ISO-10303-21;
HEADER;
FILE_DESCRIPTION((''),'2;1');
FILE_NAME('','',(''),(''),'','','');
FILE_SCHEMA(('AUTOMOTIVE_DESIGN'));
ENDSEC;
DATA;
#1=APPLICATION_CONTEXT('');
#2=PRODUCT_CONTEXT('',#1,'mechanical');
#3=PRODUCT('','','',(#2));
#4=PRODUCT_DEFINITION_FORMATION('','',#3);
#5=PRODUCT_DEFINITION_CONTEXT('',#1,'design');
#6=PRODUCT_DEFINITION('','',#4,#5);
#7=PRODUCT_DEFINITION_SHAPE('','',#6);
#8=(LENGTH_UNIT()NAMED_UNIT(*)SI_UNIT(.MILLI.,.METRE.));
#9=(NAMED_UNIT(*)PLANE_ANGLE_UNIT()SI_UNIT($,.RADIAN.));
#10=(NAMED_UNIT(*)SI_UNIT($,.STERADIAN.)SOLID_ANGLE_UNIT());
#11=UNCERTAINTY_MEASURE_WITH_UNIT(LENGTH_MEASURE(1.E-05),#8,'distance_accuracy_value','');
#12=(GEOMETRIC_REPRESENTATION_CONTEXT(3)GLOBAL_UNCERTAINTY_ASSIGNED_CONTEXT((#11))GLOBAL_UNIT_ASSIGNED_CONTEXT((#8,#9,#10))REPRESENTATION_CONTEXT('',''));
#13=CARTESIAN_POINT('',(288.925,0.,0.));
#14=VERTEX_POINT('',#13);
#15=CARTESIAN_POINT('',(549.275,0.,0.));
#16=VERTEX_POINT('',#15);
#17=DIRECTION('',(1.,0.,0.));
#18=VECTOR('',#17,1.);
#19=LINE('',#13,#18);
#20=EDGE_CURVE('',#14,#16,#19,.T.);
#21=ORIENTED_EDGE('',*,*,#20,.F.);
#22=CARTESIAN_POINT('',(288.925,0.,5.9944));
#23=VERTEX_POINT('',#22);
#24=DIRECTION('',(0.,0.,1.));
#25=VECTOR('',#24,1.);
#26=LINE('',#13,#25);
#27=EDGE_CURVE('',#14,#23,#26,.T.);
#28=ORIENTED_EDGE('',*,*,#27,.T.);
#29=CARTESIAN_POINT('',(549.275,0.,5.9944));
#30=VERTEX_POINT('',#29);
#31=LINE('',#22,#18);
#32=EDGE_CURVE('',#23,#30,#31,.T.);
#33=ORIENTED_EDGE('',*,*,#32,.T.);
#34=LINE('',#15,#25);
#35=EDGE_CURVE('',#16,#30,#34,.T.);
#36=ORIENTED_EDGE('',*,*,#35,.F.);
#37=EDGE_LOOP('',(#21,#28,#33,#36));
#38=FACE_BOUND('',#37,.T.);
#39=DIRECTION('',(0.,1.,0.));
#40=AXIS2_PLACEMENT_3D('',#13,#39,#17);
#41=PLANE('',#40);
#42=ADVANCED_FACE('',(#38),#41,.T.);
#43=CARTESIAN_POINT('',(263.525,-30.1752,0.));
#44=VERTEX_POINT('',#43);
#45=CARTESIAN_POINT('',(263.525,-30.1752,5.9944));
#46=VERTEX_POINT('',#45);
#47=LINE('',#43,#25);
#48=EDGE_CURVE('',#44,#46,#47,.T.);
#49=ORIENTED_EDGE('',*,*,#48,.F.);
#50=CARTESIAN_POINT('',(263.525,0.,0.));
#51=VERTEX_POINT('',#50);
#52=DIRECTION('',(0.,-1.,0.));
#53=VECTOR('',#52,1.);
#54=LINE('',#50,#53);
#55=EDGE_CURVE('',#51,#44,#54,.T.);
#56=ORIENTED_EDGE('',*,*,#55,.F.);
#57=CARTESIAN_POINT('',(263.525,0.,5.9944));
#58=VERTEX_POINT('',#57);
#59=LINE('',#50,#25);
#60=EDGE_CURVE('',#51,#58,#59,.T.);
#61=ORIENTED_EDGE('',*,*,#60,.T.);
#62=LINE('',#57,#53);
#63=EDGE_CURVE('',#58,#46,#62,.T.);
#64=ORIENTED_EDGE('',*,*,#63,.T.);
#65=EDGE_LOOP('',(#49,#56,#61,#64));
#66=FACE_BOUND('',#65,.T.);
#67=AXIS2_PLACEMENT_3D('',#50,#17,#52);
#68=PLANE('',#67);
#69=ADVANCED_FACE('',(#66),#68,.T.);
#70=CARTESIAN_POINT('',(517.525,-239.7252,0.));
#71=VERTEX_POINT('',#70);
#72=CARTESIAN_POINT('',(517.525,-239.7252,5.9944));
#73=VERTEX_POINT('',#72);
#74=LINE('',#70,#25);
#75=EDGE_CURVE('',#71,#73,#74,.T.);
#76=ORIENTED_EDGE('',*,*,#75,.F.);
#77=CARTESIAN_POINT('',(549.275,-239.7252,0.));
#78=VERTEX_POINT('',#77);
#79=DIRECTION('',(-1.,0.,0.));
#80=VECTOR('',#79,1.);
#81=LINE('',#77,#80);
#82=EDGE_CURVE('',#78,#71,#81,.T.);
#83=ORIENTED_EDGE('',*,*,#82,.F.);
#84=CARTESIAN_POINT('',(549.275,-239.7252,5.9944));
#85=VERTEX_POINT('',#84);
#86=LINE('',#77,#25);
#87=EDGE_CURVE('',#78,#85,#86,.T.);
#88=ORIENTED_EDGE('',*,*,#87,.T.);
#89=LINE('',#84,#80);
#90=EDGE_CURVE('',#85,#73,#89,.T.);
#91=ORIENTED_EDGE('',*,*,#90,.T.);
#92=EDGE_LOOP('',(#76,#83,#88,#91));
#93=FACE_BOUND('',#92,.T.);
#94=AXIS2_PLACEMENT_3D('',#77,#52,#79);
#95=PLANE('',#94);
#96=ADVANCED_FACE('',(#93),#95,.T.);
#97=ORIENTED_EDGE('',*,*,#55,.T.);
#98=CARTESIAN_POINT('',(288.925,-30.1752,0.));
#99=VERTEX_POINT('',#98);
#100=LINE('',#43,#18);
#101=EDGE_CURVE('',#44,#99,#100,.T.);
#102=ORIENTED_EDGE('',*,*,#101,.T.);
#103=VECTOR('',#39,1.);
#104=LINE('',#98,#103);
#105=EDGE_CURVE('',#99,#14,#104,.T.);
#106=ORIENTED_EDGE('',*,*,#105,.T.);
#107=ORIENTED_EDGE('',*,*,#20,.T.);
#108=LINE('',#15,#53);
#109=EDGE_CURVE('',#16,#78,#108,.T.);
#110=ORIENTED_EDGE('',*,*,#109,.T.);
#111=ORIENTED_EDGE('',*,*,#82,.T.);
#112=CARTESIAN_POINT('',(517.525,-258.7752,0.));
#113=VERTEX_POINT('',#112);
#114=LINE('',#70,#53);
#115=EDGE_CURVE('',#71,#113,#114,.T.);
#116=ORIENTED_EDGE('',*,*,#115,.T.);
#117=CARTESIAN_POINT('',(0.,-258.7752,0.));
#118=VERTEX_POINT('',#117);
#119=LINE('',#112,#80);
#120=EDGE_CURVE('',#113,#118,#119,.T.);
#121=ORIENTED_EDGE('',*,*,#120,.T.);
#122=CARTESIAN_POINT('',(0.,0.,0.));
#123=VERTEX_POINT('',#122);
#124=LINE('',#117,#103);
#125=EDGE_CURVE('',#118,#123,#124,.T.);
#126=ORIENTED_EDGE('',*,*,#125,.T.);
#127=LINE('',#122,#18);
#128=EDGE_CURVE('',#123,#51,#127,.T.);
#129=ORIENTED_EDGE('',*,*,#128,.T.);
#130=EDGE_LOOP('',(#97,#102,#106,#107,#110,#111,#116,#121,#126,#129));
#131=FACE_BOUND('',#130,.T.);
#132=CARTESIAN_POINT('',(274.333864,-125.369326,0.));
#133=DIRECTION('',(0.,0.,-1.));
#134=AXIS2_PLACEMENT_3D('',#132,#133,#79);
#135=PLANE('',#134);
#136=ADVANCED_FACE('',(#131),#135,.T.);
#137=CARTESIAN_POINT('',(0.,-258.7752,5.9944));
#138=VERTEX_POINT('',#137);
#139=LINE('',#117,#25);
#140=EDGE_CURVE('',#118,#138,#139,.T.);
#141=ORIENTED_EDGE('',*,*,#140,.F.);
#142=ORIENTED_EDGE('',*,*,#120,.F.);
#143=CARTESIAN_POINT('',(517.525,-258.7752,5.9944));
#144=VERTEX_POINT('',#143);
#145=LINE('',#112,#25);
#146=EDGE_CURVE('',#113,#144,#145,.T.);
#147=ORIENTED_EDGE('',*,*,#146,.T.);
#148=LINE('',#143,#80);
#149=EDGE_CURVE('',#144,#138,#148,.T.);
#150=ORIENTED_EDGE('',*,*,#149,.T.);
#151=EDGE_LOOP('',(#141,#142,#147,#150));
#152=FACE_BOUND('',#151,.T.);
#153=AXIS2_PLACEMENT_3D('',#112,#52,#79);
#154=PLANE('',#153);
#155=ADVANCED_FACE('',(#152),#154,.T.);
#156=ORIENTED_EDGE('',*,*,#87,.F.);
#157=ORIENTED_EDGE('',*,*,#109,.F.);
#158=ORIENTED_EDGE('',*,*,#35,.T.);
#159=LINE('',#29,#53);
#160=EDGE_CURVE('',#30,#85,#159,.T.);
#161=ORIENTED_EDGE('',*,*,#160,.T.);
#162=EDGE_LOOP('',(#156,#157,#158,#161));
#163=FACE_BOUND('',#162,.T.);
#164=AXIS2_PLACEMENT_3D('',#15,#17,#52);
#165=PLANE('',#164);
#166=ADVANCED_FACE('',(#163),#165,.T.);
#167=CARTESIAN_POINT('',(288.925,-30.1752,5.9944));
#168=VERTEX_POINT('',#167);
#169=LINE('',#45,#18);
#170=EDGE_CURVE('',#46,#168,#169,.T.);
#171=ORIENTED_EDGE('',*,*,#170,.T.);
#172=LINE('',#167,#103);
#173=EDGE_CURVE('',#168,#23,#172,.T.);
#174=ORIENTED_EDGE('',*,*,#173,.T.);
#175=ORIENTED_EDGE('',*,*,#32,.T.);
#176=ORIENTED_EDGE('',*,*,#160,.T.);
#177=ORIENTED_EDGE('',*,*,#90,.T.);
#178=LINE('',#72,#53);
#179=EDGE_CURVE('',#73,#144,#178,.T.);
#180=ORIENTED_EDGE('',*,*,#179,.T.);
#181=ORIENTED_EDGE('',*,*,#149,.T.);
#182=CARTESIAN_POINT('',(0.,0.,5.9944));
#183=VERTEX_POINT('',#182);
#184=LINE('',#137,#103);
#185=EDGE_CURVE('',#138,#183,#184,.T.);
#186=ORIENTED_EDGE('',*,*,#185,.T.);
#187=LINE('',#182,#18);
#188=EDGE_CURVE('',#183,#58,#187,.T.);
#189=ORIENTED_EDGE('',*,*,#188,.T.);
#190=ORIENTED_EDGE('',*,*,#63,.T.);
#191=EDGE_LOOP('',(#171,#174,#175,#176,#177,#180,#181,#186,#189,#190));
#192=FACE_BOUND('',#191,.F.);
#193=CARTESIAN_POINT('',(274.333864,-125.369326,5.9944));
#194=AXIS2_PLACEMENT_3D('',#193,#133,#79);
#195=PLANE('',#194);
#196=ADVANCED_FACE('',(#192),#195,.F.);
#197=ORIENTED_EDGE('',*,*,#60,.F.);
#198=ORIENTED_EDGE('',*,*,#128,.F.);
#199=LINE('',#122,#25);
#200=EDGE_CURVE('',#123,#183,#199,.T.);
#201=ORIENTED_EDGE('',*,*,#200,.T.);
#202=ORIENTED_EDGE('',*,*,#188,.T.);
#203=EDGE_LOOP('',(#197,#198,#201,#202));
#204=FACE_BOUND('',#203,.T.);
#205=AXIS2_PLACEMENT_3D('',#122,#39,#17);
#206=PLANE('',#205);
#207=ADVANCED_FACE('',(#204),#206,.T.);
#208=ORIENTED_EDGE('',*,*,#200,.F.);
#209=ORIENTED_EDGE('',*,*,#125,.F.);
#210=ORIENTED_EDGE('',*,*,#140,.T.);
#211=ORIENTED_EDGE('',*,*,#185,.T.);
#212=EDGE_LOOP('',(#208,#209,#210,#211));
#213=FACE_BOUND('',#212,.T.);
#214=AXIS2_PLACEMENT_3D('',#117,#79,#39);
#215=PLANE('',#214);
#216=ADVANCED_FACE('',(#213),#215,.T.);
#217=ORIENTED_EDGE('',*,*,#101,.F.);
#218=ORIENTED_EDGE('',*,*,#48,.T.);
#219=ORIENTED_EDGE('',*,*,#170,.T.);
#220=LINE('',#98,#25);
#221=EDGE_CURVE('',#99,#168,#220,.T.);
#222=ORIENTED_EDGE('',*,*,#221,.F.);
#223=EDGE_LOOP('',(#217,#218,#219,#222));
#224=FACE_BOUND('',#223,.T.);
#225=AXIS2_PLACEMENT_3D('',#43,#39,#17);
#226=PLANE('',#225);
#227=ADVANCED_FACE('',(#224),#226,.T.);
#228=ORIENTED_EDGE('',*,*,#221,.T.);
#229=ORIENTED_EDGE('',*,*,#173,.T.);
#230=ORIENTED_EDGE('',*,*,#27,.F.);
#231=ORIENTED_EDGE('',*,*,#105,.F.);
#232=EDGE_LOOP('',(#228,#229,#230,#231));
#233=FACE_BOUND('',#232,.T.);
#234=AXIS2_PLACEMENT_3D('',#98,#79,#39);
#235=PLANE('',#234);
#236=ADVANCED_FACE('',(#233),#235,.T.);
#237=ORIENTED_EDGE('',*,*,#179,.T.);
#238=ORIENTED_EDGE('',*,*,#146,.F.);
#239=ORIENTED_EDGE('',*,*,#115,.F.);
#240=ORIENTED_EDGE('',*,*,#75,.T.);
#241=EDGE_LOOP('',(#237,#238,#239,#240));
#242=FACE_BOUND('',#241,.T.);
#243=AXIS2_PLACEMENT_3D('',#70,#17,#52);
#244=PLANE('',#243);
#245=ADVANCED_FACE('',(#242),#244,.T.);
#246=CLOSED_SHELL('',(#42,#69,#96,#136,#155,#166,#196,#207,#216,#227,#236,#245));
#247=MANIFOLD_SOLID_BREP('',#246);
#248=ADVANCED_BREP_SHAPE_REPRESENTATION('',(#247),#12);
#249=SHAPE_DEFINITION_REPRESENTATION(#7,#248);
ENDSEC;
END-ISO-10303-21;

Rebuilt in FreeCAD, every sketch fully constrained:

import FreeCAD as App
import Part
import Sketcher
from FreeCAD import Vector
Q = App.Units.Quantity

doc = App.newDocument("Part")
params = doc.addObject("Spreadsheet::Sheet", "Params")
for row, (alias, value) in enumerate([
    ("sketch1_width", "1 in"),
    ("sketch1_width2", "1.25 in"),
    ("sketch1_height", "0.75 in"),
    ("sketch1_width3", "10.375 in"),
    ("sketch1_height2", "10.188 in"),
    ("pad1_length", "0.236 in"),
], start=1):
    params.set(f"A{row}", alias)
    params.set(f"B{row}", "=" + value)
    params.setAlias(f"B{row}", alias)

body = doc.addObject("PartDesign::Body", "Body")

sketch1 = doc.addObject("Sketcher::SketchObject", "Sketch")
body.addObject(sketch1)
sketch1.AttachmentSupport = (doc.XY_Plane, [""])
sketch1.MapMode = "FlatFace"
sketch1.addGeometry([
    Part.LineSegment(Vector(264, 0, 0), Vector(0, 0, 0)),
    Part.LineSegment(Vector(0, 0, 0), Vector(0, -259, 0)),
    Part.LineSegment(Vector(0, -259, 0), Vector(518, -259, 0)),
    Part.LineSegment(Vector(518, -259, 0), Vector(518, -240, 0)),
    Part.LineSegment(Vector(518, -240, 0), Vector(549, -240, 0)),
    Part.LineSegment(Vector(549, -240, 0), Vector(549, 0, 0)),
    Part.LineSegment(Vector(549, 0, 0), Vector(289, 0, 0)),
    Part.LineSegment(Vector(289, 0, 0), Vector(289, -30, 0)),
    Part.LineSegment(Vector(289, -30, 0), Vector(264, -30, 0)),
    Part.LineSegment(Vector(264, -30, 0), Vector(264, 0, 0)),
], False)
sketch1.addConstraint([
    Sketcher.Constraint("Coincident", 0, 2, 1, 1),
    Sketcher.Constraint("Coincident", 1, 2, 2, 1),
    Sketcher.Constraint("Coincident", 2, 2, 3, 1),
    Sketcher.Constraint("Coincident", 3, 2, 4, 1),
    Sketcher.Constraint("Coincident", 4, 2, 5, 1),
    Sketcher.Constraint("Coincident", 5, 2, 6, 1),
    Sketcher.Constraint("Coincident", 6, 2, 7, 1),
    Sketcher.Constraint("Coincident", 7, 2, 8, 1),
    Sketcher.Constraint("Coincident", 8, 2, 9, 1),
    Sketcher.Constraint("Coincident", 9, 2, 0, 1),
    Sketcher.Constraint("Horizontal", 0),
    Sketcher.Constraint("Vertical", 1),
    Sketcher.Constraint("Horizontal", 2),
    Sketcher.Constraint("Vertical", 3),
    Sketcher.Constraint("Horizontal", 4),
    Sketcher.Constraint("Vertical", 5),
    Sketcher.Constraint("Horizontal", 6),
    Sketcher.Constraint("Vertical", 7),
    Sketcher.Constraint("Horizontal", 8),
    Sketcher.Constraint("Vertical", 9),
    Sketcher.Constraint("Coincident", 0, 2, -1, 1),
    Sketcher.Constraint("PointOnObject", 5, 2, -1),
    Sketcher.Constraint("DistanceX", 8, 2, 8, 1, Q("1 in")),
    Sketcher.Constraint("DistanceX", 6, 2, 3, 2, Q("9 in")),
    Sketcher.Constraint("DistanceY", 2, 2, 7, 2, Q("9 in")),
    Sketcher.Constraint("DistanceX", 4, 1, 4, 2, Q("1.25 in")),
    Sketcher.Constraint("DistanceY", 3, 1, 3, 2, Q("0.75 in")),
    Sketcher.Constraint("DistanceX", 0, 2, 0, 1, Q("10.375 in")),
    Sketcher.Constraint("DistanceY", 1, 2, 1, 1, Q("10.188 in")),
])
sketch1.setExpression("Constraints[22]", "Params.sketch1_width")
sketch1.setExpression("Constraints[25]", "Params.sketch1_width2")
sketch1.setExpression("Constraints[26]", "Params.sketch1_height")
sketch1.setExpression("Constraints[27]", "Params.sketch1_width3")
sketch1.setExpression("Constraints[28]", "Params.sketch1_height2")
pad1 = doc.addObject("PartDesign::Pad", "Pad")
body.addObject(pad1)
pad1.Profile = sketch1
pad1.setExpression("Length", "Params.pad1_length")

doc.recompute()
